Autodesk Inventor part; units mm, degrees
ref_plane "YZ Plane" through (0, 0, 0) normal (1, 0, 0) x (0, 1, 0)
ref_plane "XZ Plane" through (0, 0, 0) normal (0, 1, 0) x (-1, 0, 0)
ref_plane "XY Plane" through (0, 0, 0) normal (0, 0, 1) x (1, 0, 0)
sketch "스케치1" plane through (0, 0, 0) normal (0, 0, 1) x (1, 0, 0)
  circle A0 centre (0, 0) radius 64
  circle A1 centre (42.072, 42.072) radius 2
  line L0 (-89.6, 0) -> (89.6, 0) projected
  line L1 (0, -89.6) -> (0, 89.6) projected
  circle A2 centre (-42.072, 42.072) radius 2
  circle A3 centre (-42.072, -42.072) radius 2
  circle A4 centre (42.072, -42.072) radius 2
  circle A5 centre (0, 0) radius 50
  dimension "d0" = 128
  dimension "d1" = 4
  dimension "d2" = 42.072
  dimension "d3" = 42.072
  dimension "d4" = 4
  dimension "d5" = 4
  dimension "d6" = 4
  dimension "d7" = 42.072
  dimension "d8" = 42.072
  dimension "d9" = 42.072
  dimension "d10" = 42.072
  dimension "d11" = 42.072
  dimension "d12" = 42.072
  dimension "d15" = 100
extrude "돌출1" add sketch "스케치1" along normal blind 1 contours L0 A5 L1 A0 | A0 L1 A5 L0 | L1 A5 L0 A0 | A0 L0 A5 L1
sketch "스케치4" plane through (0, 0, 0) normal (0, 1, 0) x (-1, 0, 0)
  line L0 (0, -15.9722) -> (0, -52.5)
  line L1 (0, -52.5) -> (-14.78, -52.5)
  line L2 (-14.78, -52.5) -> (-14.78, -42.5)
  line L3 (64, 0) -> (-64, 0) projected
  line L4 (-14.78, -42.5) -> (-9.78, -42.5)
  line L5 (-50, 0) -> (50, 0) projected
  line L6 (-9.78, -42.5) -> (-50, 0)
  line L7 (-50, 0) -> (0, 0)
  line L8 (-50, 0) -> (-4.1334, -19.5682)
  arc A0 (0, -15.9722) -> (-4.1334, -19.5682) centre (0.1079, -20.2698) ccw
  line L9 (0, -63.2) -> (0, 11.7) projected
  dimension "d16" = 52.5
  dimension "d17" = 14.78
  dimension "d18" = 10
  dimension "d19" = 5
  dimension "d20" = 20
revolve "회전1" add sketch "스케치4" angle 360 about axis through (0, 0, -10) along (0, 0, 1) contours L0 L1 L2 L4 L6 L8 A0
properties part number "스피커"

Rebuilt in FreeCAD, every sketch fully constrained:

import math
import FreeCAD as App
import Part
import Sketcher

V = App.Vector
Q = App.Units.Quantity

doc = App.newDocument("Part")
body = doc.addObject("PartDesign::Body", "Body")
body.AllowCompound = True

# Sketch on XY plane
sketch1 = doc.addObject("Sketcher::SketchObject", "Sketch")
body.addObject(sketch1)
sketch1.AttachmentSupport = (doc.XY_Plane, [""])
sketch1.MapMode = "FlatFace"
sketch1.addGeometry([
    Part.Circle(V(0, 0, 0), V(0, 0, 1), 64),  # 0
    Part.Circle(V(0, 0, 0), V(0, 0, 1), 50),  # 1
    Part.Circle(V(42.072, 42.072, 0), V(0, 0, 1), 2),  # 2
    Part.Circle(V(42.072, -42.072, 0), V(0, 0, 1), 2),  # 3
    Part.Circle(V(-42.072, 42.072, 0), V(0, 0, 1), 2),  # 4
    Part.Circle(V(-42.072, -42.072, 0), V(0, 0, 1), 2),  # 5
], False)
sketch1.addConstraint([
    Sketcher.Constraint("Coincident", 0, 3, -1, 1),
    Sketcher.Constraint("Coincident", 1, 3, -1, 1),
    Sketcher.Constraint("Equal", 2, 3),
    Sketcher.Constraint("Equal", 3, 4),
    Sketcher.Constraint("Equal", 4, 5),
    Sketcher.Constraint("Symmetric", 3, 3, 4, 3, -1, 1),
    Sketcher.Constraint("Symmetric", 2, 3, 5, 3, -1, 1),
    Sketcher.Constraint("Symmetric", 2, 3, 4, 3, -2),
    Sketcher.Constraint("Diameter", 0, Q("128 mm")),
    Sketcher.Constraint("Diameter", 1, Q("100 mm")),
    Sketcher.Constraint("Diameter", 2, Q("4 mm")),
    Sketcher.Constraint("DistanceX", -1, 1, 2, 3, Q("42.072 mm")),
    Sketcher.Constraint("DistanceY", -1, 1, 2, 3, Q("42.072 mm")),
])
pad1 = doc.addObject("PartDesign::Pad", "Pad")
body.addObject(pad1)
pad1.Profile = sketch1
pad1.Length = 1

# Sketch on XZ plane
sketch2 = doc.addObject("Sketcher::SketchObject", "Sketch001")
body.addObject(sketch2)
sketch2.AttachmentSupport = (doc.XZ_Plane, [""])
sketch2.MapMode = "FlatFace"
sketch2.addGeometry([
    Part.LineSegment(V(0, -52.5, 0), V(0, -15.9722, 0)),  # 0
    Part.ArcOfCircle(Part.Circle(V(-0.1079, -20.2698, 0), V(0, 0, 1), 4.298954), math.radians(9.392865), math.radians(88.561775)),  # 1
    Part.LineSegment(V(4.1334, -19.5682, 0), V(50, 0, 0)),  # 2
    Part.LineSegment(V(50, 0, 0), V(9.78, -42.5, 0)),  # 3
    Part.LineSegment(V(9.78, -42.5, 0), V(14.78, -42.5, 0)),  # 4
    Part.LineSegment(V(14.78, -42.5, 0), V(14.78, -52.5, 0)),  # 5
    Part.LineSegment(V(14.78, -52.5, 0), V(0, -52.5, 0)),  # 6
], False)
sketch2.addConstraint([
    Sketcher.Constraint("Coincident", 0, 2, 1, 2),
    Sketcher.Constraint("Coincident", 1, 1, 2, 1),
    Sketcher.Constraint("Coincident", 2, 2, 3, 1),
    Sketcher.Constraint("Coincident", 3, 2, 4, 1),
    Sketcher.Constraint("Coincident", 4, 2, 5, 1),
    Sketcher.Constraint("Coincident", 5, 2, 6, 1),
    Sketcher.Constraint("Coincident", 6, 2, 0, 1),
    Sketcher.Constraint("Vertical", 0),
    Sketcher.Constraint("Horizontal", 4),
    Sketcher.Constraint("Vertical", 5),
    Sketcher.Constraint("Horizontal", 6),
    Sketcher.Constraint("PointOnObject", 0, 2, -2),
    Sketcher.Constraint("PointOnObject", 2, 2, -1),
    Sketcher.Constraint("DistanceX", 4, 1, 4, 2, Q("5 mm")),
    Sketcher.Constraint("DistanceY", 5, 2, 5, 1, Q("10 mm")),
    Sketcher.Constraint("DistanceX", 6, 2, 6, 1, Q("14.78 mm")),
    Sketcher.Constraint("DistanceY", 5, 2, -1, 1, Q("52.5 mm")),
    Sketcher.Constraint("DistanceX", -1, 1, 2, 2, Q("50 mm")),
    Sketcher.Constraint("Radius", 1, Q("4.299 mm")),
    Sketcher.Constraint("DistanceY", 0, 1, 0, 2, Q("36.5278 mm")),
    Sketcher.Constraint("DistanceX", 1, 3, -1, 1, Q("0.108 mm")),
    Sketcher.Constraint("DistanceY", 1, 1, 0, 2, Q("3.596 mm")),
])
revolution = doc.addObject("PartDesign::Revolution", "Revolution")
body.addObject(revolution)
revolution.Profile = sketch2
revolution.ReferenceAxis = (sketch2, ["V_Axis"])
revolution.Angle = 360

doc.recompute()
